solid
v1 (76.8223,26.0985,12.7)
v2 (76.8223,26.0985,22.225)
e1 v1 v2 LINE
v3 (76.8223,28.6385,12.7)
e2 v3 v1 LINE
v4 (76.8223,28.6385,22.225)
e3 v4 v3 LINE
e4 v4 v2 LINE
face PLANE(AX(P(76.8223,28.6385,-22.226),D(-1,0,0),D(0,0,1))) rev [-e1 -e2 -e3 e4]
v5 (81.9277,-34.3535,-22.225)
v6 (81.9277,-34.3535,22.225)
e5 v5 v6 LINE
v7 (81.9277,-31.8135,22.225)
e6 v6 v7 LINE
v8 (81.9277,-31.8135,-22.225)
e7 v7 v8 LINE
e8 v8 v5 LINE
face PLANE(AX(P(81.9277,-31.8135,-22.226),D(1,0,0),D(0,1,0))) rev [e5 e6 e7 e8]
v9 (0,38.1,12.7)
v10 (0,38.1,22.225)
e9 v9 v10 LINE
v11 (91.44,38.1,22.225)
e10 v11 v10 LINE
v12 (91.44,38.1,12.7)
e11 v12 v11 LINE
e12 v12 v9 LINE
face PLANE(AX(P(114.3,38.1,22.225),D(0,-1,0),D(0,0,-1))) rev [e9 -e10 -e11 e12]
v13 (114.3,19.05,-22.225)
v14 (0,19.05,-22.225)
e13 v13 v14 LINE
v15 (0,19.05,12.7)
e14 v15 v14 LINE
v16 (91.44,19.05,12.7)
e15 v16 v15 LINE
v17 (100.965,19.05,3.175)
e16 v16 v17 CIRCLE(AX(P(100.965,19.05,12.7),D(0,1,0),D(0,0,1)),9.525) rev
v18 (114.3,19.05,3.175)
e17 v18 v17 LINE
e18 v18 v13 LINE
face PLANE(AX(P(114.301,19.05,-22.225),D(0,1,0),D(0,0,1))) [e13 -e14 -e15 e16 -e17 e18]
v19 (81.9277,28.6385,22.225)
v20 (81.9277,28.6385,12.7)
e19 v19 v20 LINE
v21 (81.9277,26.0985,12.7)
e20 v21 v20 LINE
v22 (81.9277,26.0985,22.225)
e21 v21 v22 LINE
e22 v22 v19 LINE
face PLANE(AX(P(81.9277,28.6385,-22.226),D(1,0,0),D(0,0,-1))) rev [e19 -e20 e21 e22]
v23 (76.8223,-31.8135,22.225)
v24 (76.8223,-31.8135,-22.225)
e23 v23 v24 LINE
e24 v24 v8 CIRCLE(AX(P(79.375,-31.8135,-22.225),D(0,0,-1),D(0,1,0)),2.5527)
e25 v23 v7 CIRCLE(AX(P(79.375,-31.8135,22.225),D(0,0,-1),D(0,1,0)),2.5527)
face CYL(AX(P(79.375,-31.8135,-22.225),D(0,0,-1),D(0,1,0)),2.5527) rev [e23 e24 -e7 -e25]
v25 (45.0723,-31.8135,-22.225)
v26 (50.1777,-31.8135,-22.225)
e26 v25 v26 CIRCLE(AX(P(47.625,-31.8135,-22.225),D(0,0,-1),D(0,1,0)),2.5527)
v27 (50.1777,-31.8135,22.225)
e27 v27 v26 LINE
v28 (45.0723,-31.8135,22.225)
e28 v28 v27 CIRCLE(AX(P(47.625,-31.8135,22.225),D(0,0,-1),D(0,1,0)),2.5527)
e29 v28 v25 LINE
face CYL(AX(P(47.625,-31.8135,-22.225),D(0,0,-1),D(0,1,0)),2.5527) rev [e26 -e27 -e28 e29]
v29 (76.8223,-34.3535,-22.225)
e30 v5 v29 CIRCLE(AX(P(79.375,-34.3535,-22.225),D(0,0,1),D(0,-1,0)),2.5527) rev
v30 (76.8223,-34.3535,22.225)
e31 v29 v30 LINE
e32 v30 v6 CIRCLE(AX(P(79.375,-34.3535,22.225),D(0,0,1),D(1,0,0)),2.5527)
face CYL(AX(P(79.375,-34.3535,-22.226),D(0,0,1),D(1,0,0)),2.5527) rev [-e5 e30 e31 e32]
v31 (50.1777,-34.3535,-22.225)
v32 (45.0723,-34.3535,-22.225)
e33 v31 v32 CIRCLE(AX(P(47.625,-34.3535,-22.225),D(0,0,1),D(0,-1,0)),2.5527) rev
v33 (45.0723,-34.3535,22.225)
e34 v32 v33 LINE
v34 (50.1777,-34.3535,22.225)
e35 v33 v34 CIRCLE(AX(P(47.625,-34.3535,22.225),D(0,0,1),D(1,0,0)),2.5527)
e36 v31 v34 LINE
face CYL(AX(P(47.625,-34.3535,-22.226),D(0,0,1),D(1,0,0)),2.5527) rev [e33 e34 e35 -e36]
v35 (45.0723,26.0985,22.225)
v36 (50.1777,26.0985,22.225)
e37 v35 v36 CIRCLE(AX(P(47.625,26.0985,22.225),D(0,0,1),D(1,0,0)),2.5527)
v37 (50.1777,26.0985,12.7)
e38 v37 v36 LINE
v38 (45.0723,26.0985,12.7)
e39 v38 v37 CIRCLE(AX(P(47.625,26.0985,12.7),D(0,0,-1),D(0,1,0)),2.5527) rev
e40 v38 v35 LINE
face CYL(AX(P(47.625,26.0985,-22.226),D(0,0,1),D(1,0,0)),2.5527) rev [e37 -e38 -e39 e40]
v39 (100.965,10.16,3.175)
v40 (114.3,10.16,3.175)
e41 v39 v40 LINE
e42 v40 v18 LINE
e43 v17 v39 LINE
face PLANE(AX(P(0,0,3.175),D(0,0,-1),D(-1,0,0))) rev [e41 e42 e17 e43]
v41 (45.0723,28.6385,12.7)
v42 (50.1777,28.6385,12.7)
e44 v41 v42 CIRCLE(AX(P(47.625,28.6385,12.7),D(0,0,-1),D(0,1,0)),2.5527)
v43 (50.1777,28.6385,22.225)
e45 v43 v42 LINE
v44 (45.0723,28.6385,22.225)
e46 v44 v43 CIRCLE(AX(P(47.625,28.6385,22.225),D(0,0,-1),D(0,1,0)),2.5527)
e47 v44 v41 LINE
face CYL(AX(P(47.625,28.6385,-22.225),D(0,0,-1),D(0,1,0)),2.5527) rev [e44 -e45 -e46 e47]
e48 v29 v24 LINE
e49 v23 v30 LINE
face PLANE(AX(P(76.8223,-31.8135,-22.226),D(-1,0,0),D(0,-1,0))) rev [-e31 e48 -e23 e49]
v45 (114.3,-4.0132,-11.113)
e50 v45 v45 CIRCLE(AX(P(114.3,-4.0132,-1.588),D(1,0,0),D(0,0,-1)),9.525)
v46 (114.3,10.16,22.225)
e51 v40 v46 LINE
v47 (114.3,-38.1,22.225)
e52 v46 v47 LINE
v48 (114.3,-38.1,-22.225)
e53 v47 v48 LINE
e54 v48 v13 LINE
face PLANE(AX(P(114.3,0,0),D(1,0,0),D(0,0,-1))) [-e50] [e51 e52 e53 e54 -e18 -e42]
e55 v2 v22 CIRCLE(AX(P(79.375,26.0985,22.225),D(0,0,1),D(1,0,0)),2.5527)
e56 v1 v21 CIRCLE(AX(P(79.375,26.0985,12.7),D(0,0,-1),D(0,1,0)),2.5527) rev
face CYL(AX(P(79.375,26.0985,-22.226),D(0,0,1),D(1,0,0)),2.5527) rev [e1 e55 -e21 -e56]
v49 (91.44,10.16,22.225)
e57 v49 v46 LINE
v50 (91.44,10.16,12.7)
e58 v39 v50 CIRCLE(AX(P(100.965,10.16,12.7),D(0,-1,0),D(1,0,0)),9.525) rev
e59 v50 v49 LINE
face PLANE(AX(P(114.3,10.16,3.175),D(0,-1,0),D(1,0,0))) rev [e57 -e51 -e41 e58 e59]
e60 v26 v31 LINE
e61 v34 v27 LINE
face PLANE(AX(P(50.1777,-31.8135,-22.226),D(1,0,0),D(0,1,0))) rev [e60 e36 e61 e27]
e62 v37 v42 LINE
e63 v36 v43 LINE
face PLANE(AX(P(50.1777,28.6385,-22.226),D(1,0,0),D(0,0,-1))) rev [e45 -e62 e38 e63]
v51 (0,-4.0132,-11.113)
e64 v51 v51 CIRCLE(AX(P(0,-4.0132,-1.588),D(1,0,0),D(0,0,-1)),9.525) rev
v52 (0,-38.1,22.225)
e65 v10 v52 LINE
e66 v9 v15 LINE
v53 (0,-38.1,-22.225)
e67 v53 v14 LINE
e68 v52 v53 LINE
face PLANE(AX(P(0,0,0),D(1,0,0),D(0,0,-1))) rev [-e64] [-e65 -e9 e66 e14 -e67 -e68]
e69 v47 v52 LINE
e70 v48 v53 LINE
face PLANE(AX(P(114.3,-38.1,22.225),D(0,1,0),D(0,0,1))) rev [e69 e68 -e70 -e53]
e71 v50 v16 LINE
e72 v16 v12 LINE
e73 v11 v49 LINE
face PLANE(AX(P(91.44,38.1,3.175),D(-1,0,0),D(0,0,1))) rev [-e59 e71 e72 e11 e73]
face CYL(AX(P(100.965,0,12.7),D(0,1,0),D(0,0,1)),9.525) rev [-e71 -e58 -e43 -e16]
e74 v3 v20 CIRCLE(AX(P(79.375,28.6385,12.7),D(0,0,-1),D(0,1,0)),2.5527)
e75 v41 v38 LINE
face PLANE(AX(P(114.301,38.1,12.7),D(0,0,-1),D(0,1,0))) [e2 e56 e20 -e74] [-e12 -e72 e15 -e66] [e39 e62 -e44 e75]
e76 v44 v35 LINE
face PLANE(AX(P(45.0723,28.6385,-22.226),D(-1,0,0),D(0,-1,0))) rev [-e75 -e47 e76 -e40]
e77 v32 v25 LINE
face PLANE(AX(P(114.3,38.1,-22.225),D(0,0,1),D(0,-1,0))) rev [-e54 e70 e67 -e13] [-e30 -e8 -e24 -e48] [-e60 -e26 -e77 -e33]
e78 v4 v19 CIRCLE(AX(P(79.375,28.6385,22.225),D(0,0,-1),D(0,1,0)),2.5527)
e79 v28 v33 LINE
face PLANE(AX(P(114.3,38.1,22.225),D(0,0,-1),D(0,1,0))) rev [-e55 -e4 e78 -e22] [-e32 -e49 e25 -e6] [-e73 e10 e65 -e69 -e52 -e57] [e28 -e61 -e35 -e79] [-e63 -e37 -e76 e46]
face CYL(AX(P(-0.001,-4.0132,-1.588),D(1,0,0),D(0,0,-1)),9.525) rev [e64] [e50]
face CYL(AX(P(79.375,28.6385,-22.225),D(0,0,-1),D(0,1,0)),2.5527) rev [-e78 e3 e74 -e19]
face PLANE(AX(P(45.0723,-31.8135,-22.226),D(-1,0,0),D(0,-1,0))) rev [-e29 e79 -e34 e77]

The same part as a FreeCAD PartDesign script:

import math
import FreeCAD as App
import Part
import Sketcher
from FreeCAD import Vector
Q = App.Units.Quantity


def edges_at(feature, points):
    """Names of the edges that pass closest to the given points."""
    edges = feature.Shape.Edges
    near = lambda p: min(range(len(edges)), key=lambda i: edges[i].distToShape(Part.Vertex(*p))[0])
    return sorted({f"Edge{near(p) + 1}" for p in points})

doc = App.newDocument("Part")
body = doc.addObject("PartDesign::Body", "Body")

sketch1 = doc.addObject("Sketcher::SketchObject", "Sketch")
body.addObject(sketch1)
sketch1.AttachmentSupport = (doc.YZ_Plane, [""])
sketch1.MapMode = "FlatFace"
sketch1.addGeometry([
    Part.LineSegment(Vector(38, 22, 0), Vector(-38, 22, 0)),
    Part.LineSegment(Vector(-38, 22, 0), Vector(-38, -22, 0)),
    Part.LineSegment(Vector(-38, -22, 0), Vector(38, -22, 0)),
    Part.LineSegment(Vector(38, -22, 0), Vector(38, 22, 0)),
], False)
sketch1.addConstraint([
    Sketcher.Constraint("Coincident", 0, 2, 1, 1),
    Sketcher.Constraint("Coincident", 1, 2, 2, 1),
    Sketcher.Constraint("Coincident", 2, 2, 3, 1),
    Sketcher.Constraint("Coincident", 3, 2, 0, 1),
    Sketcher.Constraint("Horizontal", 0),
    Sketcher.Constraint("Vertical", 1),
    Sketcher.Constraint("Horizontal", 2),
    Sketcher.Constraint("Vertical", 3),
    Sketcher.Constraint("Symmetric", 0, 2, 2, 2, -1, 1),
    Sketcher.Constraint("DistanceX", 0, 2, 0, 1, Q("3 in")),
    Sketcher.Constraint("DistanceY", 1, 2, 1, 1, Q("1.75 in")),
])
pad1 = doc.addObject("PartDesign::Pad", "Pad")
body.addObject(pad1)
pad1.Profile = sketch1
pad1.Length = Q("4.5 in")

sketch2 = doc.addObject("Sketcher::SketchObject", "Sketch001")
body.addObject(sketch2)
sketch2.AttachmentSupport = (doc.YZ_Plane, [""])
sketch2.MapMode = "FlatFace"
sketch2.AttachmentOffset = App.Placement(Vector(0, 0, 4.5 * 25.4), App.Rotation())
sketch2.addGeometry(Part.Circle(Vector(-4, -2, 0), Vector(0, 0, 1), 10), False)
sketch2.addConstraint([
    Sketcher.Constraint("Diameter", 0, Q("0.75 in")),
    Sketcher.Constraint("DistanceX", 0, 3, -1, 1, Q("0.158 in")),
    Sketcher.Constraint("DistanceY", 0, 3, -1, 1, Q("1.588 mm")),
])
pocket1 = doc.addObject("PartDesign::Pocket", "Pocket")
body.addObject(pocket1)
pocket1.Profile = sketch2
pocket1.Type = "UpToFirst"

sketch3 = doc.addObject("Sketcher::SketchObject", "Sketch002")
body.addObject(sketch3)
sketch3.AttachmentSupport = (doc.XY_Plane, [""])
sketch3.MapMode = "FlatFace"
sketch3.AttachmentOffset = App.Placement(Vector(0, 0, 0.875 * 25.4), App.Rotation())
sketch3.addGeometry([
    Part.LineSegment(Vector(91, 38, 0), Vector(91, 10, 0)),
    Part.LineSegment(Vector(91, 10, 0), Vector(114, 10, 0)),
    Part.LineSegment(Vector(114, 10, 0), Vector(114, 38, 0)),
    Part.LineSegment(Vector(114, 38, 0), Vector(91, 38, 0)),
], False)
sketch3.addConstraint([
    Sketcher.Constraint("Coincident", 0, 2, 1, 1),
    Sketcher.Constraint("Coincident", 1, 2, 2, 1),
    Sketcher.Constraint("Coincident", 2, 2, 3, 1),
    Sketcher.Constraint("Coincident", 3, 2, 0, 1),
    Sketcher.Constraint("Vertical", 0),
    Sketcher.Constraint("Horizontal", 1),
    Sketcher.Constraint("Vertical", 2),
    Sketcher.Constraint("Horizontal", 3),
    Sketcher.Constraint("DistanceX", 1, 1, 1, 2, Q("0.9 in")),
    Sketcher.Constraint("DistanceY", 0, 2, 0, 1, Q("1.1 in")),
    Sketcher.Constraint("DistanceX", -1, 1, 0, 2, Q("3.6 in")),
    Sketcher.Constraint("DistanceY", -1, 1, 0, 2, Q("0.4 in")),
])
pocket2 = doc.addObject("PartDesign::Pocket", "Pocket001")
body.addObject(pocket2)
pocket2.Profile = sketch3
pocket2.Length = Q("0.75 in")

sketch4 = doc.addObject("Sketcher::SketchObject", "Sketch003")
body.addObject(sketch4)
sketch4.AttachmentSupport = (doc.YZ_Plane, [""])
sketch4.MapMode = "FlatFace"
sketch4.addGeometry([
    Part.LineSegment(Vector(38, 13, 0), Vector(19, 13, 0)),
    Part.LineSegment(Vector(19, 13, 0), Vector(19, -22, 0)),
    Part.LineSegment(Vector(19, -22, 0), Vector(38, -22, 0)),
    Part.LineSegment(Vector(38, -22, 0), Vector(38, 13, 0)),
], False)
sketch4.addConstraint([
    Sketcher.Constraint("Coincident", 0, 2, 1, 1),
    Sketcher.Constraint("Coincident", 1, 2, 2, 1),
    Sketcher.Constraint("Coincident", 2, 2, 3, 1),
    Sketcher.Constraint("Coincident", 3, 2, 0, 1),
    Sketcher.Constraint("Horizontal", 0),
    Sketcher.Constraint("Vertical", 1),
    Sketcher.Constraint("Horizontal", 2),
    Sketcher.Constraint("Vertical", 3),
    Sketcher.Constraint("DistanceX", 0, 2, 0, 1, Q("0.75 in")),
    Sketcher.Constraint("DistanceY", -1, 1, 0, 2, Q("0.5 in")),
    Sketcher.Constraint("DistanceX", -1, 1, 2, 2, Q("1.5 in")),
    Sketcher.Constraint("DistanceY", 1, 2, 1, 1, Q("1.375 in")),
])
pocket3 = doc.addObject("PartDesign::Pocket", "Pocket002")
body.addObject(pocket3)
pocket3.Profile = sketch4
pocket3.Type = "UpToFirst"
pocket3.Reversed = True
doc.recompute()

fillet = doc.addObject("PartDesign::Fillet", "Fillet")
body.addObject(fillet)
fillet.Base = (pocket3, edges_at(pocket3, [(91.44, 14.605, 3.175)]))
fillet.Radius = Q("0.375 in")

sketch5 = doc.addObject("Sketcher::SketchObject", "Sketch004")
body.addObject(sketch5)
sketch5.AttachmentSupport = (doc.XY_Plane, [""])
sketch5.MapMode = "FlatFace"
sketch5.AttachmentOffset = App.Placement(Vector(0, 0, -0.875 * 25.4), App.Rotation())
sketch5.addGeometry([
    Part.Circle(Vector(47.6, 28.6, 0), Vector(0, 0, 1), 2.6),
    Part.Circle(Vector(79.4, -31.8, 0), Vector(0, 0, 1), 2.6),
    Part.Circle(Vector(47.6, -31.8, 0), Vector(0, 0, 1), 2.6),
    Part.Circle(Vector(79.4, 28.6, 0), Vector(0, 0, 1), 2.6),
], False)
sketch5.addConstraint([
    Sketcher.Constraint("Equal", 0, 1),
    Sketcher.Constraint("Equal", 1, 2),
    Sketcher.Constraint("Equal", 2, 3),
    Sketcher.Constraint("Horizontal", 1, 3, 2, 3),
    Sketcher.Constraint("Horizontal", 0, 3, 3, 3),
    Sketcher.Constraint("Vertical", 0, 3, 2, 3),
    Sketcher.Constraint("Vertical", 1, 3, 3, 3),
    Sketcher.Constraint("Diameter", 0, Q("0.201 in")),
    Sketcher.Constraint("DistanceX", 0, 3, 1, 3, Q("1.25 in")),
    Sketcher.Constraint("DistanceY", 1, 3, 0, 3, Q("2.38 in")),
    Sketcher.Constraint("DistanceX", -1, 1, 0, 3, Q("1.875 in")),
    Sketcher.Constraint("DistanceY", -1, 1, 0, 3, Q("1.1275 in")),
])
doc.recompute()
hole = doc.addObject("PartDesign::Hole", "Hole")
body.addObject(hole)
hole.Profile = sketch5
hole.ThreadType = "None"
hole.Diameter = Q("0.201 in")
hole.DepthType = "ThroughAll"
hole.Reversed = True

sketch6 = doc.addObject("Sketcher::SketchObject", "Sketch005")
body.addObject(sketch6)
sketch6.AttachmentSupport = (doc.XY_Plane, [""])
sketch6.MapMode = "FlatFace"
sketch6.AttachmentOffset = App.Placement(Vector(0, 0, 0.875 * 25.4), App.Rotation())
sketch6.addGeometry([
    Part.LineSegment(Vector(50.2, 26.1, 0), Vector(50.2, 28.6, 0)),
    Part.ArcOfCircle(Part.Circle(Vector(47.6, 28.6, 0), Vector(0, 0, 1), 2.6), math.radians(0), math.radians(180)),
    Part.LineSegment(Vector(45.1, 28.6, 0), Vector(45.1, 26.1, 0)),
    Part.ArcOfCircle(Part.Circle(Vector(47.6, 26.1, 0), Vector(0, 0, 1), 2.6), math.radians(180), math.radians(360)),
], False)
sketch6.addConstraint([
    Sketcher.Constraint("Tangent", 0, 2, 1, 1),
    Sketcher.Constraint("Tangent", 1, 2, 2, 1),
    Sketcher.Constraint("Tangent", 2, 2, 3, 1),
    Sketcher.Constraint("Tangent", 3, 2, 0, 1),
    Sketcher.Constraint("Vertical", 0),
    Sketcher.Constraint("Vertical", 2),
    Sketcher.Constraint("DistanceY", 0, 1, 0, 2, Q("0.1 in")),
    Sketcher.Constraint("Radius", 1, Q("0.1005 in")),
    Sketcher.Constraint("DistanceX", -1, 1, 1, 3, Q("1.875 in")),
    Sketcher.Constraint("DistanceY", -1, 1, 1, 3, Q("1.1275 in")),
])
pocket4 = doc.addObject("PartDesign::Pocket", "Pocket003")
body.addObject(pocket4)
pocket4.Profile = sketch6
pocket4.Length = Q("0.375 in")

sketch7 = doc.addObject("Sketcher::SketchObject", "Sketch006")
body.addObject(sketch7)
sketch7.AttachmentSupport = (doc.XY_Plane, [""])
sketch7.MapMode = "FlatFace"
sketch7.AttachmentOffset = App.Placement(Vector(0, 0, 0.875 * 25.4), App.Rotation())
sketch7.addGeometry([
    Part.LineSegment(Vector(81.9, 26.1, 0), Vector(81.9, 28.6, 0)),
    Part.ArcOfCircle(Part.Circle(Vector(79.4, 28.6, 0), Vector(0, 0, 1), 2.6), math.radians(0), math.radians(180)),
    Part.LineSegment(Vector(76.8, 28.6, 0), Vector(76.8, 26.1, 0)),
    Part.ArcOfCircle(Part.Circle(Vector(79.4, 26.1, 0), Vector(0, 0, 1), 2.6), math.radians(180), math.radians(360)),
], False)
sketch7.addConstraint([
    Sketcher.Constraint("Tangent", 0, 2, 1, 1),
    Sketcher.Constraint("Tangent", 1, 2, 2, 1),
    Sketcher.Constraint("Tangent", 2, 2, 3, 1),
    Sketcher.Constraint("Tangent", 3, 2, 0, 1),
    Sketcher.Constraint("Vertical", 0),
    Sketcher.Constraint("Vertical", 2),
    Sketcher.Constraint("DistanceY", 0, 1, 0, 2, Q("0.1 in")),
    Sketcher.Constraint("Radius", 1, Q("0.1005 in")),
    Sketcher.Constraint("DistanceX", -1, 1, 1, 3, Q("3.125 in")),
    Sketcher.Constraint("DistanceY", -1, 1, 1, 3, Q("1.1275 in")),
])
pocket5 = doc.addObject("PartDesign::Pocket", "Pocket004")
body.addObject(pocket5)
pocket5.Profile = sketch7
pocket5.Length = Q("0.375 in")

sketch8 = doc.addObject("Sketcher::SketchObject", "Sketch007")
body.addObject(sketch8)
sketch8.AttachmentSupport = (doc.XY_Plane, [""])
sketch8.MapMode = "FlatFace"
sketch8.AttachmentOffset = App.Placement(Vector(0, 0, 0.875 * 25.4), App.Rotation())
sketch8.addGeometry([
    Part.LineSegment(Vector(81.9, -34.4, 0), Vector(81.9, -31.8, 0)),
    Part.ArcOfCircle(Part.Circle(Vector(79.4, -31.8, 0), Vector(0, 0, 1), 2.6), math.radians(0), math.radians(180)),
    Part.LineSegment(Vector(76.8, -31.8, 0), Vector(76.8, -34.4, 0)),
    Part.ArcOfCircle(Part.Circle(Vector(79.4, -34.4, 0), Vector(0, 0, 1), 2.6), math.radians(180), math.radians(360)),
], False)
sketch8.addConstraint([
    Sketcher.Constraint("Tangent", 0, 2, 1, 1),
    Sketcher.Constraint("Tangent", 1, 2, 2, 1),
    Sketcher.Constraint("Tangent", 2, 2, 3, 1),
    Sketcher.Constraint("Tangent", 3, 2, 0, 1),
    Sketcher.Constraint("Vertical", 0),
    Sketcher.Constraint("Vertical", 2),
    Sketcher.Constraint("DistanceY", 0, 1, 0, 2, Q("0.1 in")),
    Sketcher.Constraint("Radius", 1, Q("0.1005 in")),
    Sketcher.Constraint("DistanceX", -1, 1, 1, 3, Q("3.125 in")),
    Sketcher.Constraint("DistanceY", 1, 3, -1, 1, Q("1.2525 in")),
])
pocket6 = doc.addObject("PartDesign::Pocket", "Pocket005")
body.addObject(pocket6)
pocket6.Profile = sketch8
pocket6.Length = Q("1.75 in")

sketch9 = doc.addObject("Sketcher::SketchObject", "Sketch008")
body.addObject(sketch9)
sketch9.AttachmentSupport = (doc.XY_Plane, [""])
sketch9.MapMode = "FlatFace"
sketch9.AttachmentOffset = App.Placement(Vector(0, 0, 0.875 * 25.4), App.Rotation())
sketch9.addGeometry([
    Part.LineSegment(Vector(50.2, -34.4, 0), Vector(50.2, -31.8, 0)),
    Part.ArcOfCircle(Part.Circle(Vector(47.6, -31.8, 0), Vector(0, 0, 1), 2.6), math.radians(0), math.radians(180)),
    Part.LineSegment(Vector(45.1, -31.8, 0), Vector(45.1, -34.4, 0)),
    Part.ArcOfCircle(Part.Circle(Vector(47.6, -34.4, 0), Vector(0, 0, 1), 2.6), math.radians(180), math.radians(360)),
], False)
sketch9.addConstraint([
    Sketcher.Constraint("Tangent", 0, 2, 1, 1),
    Sketcher.Constraint("Tangent", 1, 2, 2, 1),
    Sketcher.Constraint("Tangent", 2, 2, 3, 1),
    Sketcher.Constraint("Tangent", 3, 2, 0, 1),
    Sketcher.Constraint("Vertical", 0),
    Sketcher.Constraint("Vertical", 2),
    Sketcher.Constraint("DistanceY", 0, 1, 0, 2, Q("0.1 in")),
    Sketcher.Constraint("Radius", 1, Q("0.1005 in")),
    Sketcher.Constraint("DistanceX", -1, 1, 1, 3, Q("1.875 in")),
    Sketcher.Constraint("DistanceY", 1, 3, -1, 1, Q("1.2525 in")),
])
pocket7 = doc.addObject("PartDesign::Pocket", "Pocket006")
body.addObject(pocket7)
pocket7.Profile = sketch9
pocket7.Length = Q("1.75 in")

doc.recompute()
